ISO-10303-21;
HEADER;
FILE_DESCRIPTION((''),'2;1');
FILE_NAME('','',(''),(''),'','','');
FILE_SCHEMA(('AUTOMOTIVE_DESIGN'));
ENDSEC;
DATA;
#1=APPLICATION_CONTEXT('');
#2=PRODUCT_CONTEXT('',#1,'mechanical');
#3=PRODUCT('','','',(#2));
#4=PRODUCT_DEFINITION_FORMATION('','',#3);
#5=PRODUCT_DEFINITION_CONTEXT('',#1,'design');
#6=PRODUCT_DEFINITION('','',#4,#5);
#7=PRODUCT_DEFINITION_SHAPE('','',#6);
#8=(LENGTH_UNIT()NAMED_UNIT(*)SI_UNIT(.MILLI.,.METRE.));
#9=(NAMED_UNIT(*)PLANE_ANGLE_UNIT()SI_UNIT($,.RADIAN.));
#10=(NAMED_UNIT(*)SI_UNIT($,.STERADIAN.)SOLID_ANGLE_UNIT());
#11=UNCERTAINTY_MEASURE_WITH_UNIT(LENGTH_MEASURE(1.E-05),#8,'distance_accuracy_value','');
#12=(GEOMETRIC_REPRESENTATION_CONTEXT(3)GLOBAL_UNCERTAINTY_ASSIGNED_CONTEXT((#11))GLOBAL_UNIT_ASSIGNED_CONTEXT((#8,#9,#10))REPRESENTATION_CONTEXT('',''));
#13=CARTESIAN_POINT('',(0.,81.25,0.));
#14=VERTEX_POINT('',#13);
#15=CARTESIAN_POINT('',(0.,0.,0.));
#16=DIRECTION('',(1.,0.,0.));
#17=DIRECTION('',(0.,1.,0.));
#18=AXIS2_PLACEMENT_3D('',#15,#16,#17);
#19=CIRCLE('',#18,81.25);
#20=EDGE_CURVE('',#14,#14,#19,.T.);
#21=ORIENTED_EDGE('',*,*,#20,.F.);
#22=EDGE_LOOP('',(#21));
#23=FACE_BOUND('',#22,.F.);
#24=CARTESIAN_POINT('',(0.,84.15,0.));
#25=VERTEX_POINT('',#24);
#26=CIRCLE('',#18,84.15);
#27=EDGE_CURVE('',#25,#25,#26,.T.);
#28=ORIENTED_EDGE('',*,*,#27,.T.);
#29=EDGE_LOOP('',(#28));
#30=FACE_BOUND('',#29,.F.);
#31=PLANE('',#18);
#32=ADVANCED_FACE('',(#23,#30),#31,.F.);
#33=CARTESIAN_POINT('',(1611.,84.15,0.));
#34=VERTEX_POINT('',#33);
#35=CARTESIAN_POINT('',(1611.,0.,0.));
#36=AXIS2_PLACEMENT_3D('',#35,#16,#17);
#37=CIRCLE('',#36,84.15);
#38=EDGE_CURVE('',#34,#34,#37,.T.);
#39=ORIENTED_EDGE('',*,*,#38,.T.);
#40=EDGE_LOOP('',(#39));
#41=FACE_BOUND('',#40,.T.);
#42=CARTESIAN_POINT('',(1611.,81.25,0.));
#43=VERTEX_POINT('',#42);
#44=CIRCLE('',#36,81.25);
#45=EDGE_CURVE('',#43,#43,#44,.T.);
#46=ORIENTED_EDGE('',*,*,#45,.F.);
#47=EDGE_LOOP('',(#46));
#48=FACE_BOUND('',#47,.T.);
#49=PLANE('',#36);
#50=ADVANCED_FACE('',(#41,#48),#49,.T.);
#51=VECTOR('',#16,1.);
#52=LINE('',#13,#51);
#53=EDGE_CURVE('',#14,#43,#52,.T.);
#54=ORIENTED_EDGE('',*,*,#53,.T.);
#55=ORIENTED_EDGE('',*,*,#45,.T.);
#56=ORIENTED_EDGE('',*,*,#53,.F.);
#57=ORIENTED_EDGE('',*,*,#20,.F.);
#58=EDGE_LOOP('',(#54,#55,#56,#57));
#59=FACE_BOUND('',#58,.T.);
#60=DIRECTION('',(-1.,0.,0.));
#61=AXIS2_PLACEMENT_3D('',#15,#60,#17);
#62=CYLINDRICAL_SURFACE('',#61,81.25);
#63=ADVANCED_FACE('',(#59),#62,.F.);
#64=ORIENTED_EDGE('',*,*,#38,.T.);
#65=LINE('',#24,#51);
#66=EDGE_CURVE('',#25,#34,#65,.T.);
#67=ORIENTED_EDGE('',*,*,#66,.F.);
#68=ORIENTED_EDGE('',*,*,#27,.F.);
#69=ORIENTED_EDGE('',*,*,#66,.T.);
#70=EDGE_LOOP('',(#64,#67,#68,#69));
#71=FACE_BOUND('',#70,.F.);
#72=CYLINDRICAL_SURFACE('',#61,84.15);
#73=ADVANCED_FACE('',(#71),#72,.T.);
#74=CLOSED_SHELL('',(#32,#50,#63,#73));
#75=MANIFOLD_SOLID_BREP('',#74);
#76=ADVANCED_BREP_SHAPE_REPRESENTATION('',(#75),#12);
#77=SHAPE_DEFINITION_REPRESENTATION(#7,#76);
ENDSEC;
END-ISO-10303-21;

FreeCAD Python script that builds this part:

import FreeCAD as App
import Part
import Sketcher

doc = App.newDocument("Part")
params = doc.addObject("Spreadsheet::Sheet", "Params")
for row, (alias, value) in enumerate([
    ("sketch1_diameter", "168.3 mm"),
    ("sketch1_diameter2", "162.5 mm"),
    ("pad1_length", "1611 mm"),
], start=1):
    params.set(f"A{row}", alias)
    params.set(f"B{row}", "=" + value)
    params.setAlias(f"B{row}", alias)

body = doc.addObject("PartDesign::Body", "Body")

# Sketch on YZ plane
sketch1 = body.newObject("Sketcher::SketchObject", "Sketch")
sketch1.AttachmentSupport = (doc.getObject("YZ_Plane"), [""])
sketch1.MapMode = "FlatFace"
sketch1.addGeometry([
    Part.Circle(App.Vector(0, 0, 0), App.Vector(0, 0, 1), 84),
    Part.Circle(App.Vector(0, 0, 0), App.Vector(0, 0, 1), 81),
], False)
sketch1.addConstraint([
    Sketcher.Constraint("Coincident", 0, 3, -1, 1),
    Sketcher.Constraint("Coincident", 1, 3, -1, 1),
    Sketcher.Constraint("Diameter", 0, 168.3),
    Sketcher.Constraint("Diameter", 1, 162.5),
])
sketch1.setExpression("Constraints[2]", "Params.sketch1_diameter")
sketch1.setExpression("Constraints[3]", "Params.sketch1_diameter2")
pad1 = body.newObject("PartDesign::Pad", "Pad")
pad1.Profile = sketch1
pad1.setExpression("Length", "Params.pad1_length")

doc.recompute()
